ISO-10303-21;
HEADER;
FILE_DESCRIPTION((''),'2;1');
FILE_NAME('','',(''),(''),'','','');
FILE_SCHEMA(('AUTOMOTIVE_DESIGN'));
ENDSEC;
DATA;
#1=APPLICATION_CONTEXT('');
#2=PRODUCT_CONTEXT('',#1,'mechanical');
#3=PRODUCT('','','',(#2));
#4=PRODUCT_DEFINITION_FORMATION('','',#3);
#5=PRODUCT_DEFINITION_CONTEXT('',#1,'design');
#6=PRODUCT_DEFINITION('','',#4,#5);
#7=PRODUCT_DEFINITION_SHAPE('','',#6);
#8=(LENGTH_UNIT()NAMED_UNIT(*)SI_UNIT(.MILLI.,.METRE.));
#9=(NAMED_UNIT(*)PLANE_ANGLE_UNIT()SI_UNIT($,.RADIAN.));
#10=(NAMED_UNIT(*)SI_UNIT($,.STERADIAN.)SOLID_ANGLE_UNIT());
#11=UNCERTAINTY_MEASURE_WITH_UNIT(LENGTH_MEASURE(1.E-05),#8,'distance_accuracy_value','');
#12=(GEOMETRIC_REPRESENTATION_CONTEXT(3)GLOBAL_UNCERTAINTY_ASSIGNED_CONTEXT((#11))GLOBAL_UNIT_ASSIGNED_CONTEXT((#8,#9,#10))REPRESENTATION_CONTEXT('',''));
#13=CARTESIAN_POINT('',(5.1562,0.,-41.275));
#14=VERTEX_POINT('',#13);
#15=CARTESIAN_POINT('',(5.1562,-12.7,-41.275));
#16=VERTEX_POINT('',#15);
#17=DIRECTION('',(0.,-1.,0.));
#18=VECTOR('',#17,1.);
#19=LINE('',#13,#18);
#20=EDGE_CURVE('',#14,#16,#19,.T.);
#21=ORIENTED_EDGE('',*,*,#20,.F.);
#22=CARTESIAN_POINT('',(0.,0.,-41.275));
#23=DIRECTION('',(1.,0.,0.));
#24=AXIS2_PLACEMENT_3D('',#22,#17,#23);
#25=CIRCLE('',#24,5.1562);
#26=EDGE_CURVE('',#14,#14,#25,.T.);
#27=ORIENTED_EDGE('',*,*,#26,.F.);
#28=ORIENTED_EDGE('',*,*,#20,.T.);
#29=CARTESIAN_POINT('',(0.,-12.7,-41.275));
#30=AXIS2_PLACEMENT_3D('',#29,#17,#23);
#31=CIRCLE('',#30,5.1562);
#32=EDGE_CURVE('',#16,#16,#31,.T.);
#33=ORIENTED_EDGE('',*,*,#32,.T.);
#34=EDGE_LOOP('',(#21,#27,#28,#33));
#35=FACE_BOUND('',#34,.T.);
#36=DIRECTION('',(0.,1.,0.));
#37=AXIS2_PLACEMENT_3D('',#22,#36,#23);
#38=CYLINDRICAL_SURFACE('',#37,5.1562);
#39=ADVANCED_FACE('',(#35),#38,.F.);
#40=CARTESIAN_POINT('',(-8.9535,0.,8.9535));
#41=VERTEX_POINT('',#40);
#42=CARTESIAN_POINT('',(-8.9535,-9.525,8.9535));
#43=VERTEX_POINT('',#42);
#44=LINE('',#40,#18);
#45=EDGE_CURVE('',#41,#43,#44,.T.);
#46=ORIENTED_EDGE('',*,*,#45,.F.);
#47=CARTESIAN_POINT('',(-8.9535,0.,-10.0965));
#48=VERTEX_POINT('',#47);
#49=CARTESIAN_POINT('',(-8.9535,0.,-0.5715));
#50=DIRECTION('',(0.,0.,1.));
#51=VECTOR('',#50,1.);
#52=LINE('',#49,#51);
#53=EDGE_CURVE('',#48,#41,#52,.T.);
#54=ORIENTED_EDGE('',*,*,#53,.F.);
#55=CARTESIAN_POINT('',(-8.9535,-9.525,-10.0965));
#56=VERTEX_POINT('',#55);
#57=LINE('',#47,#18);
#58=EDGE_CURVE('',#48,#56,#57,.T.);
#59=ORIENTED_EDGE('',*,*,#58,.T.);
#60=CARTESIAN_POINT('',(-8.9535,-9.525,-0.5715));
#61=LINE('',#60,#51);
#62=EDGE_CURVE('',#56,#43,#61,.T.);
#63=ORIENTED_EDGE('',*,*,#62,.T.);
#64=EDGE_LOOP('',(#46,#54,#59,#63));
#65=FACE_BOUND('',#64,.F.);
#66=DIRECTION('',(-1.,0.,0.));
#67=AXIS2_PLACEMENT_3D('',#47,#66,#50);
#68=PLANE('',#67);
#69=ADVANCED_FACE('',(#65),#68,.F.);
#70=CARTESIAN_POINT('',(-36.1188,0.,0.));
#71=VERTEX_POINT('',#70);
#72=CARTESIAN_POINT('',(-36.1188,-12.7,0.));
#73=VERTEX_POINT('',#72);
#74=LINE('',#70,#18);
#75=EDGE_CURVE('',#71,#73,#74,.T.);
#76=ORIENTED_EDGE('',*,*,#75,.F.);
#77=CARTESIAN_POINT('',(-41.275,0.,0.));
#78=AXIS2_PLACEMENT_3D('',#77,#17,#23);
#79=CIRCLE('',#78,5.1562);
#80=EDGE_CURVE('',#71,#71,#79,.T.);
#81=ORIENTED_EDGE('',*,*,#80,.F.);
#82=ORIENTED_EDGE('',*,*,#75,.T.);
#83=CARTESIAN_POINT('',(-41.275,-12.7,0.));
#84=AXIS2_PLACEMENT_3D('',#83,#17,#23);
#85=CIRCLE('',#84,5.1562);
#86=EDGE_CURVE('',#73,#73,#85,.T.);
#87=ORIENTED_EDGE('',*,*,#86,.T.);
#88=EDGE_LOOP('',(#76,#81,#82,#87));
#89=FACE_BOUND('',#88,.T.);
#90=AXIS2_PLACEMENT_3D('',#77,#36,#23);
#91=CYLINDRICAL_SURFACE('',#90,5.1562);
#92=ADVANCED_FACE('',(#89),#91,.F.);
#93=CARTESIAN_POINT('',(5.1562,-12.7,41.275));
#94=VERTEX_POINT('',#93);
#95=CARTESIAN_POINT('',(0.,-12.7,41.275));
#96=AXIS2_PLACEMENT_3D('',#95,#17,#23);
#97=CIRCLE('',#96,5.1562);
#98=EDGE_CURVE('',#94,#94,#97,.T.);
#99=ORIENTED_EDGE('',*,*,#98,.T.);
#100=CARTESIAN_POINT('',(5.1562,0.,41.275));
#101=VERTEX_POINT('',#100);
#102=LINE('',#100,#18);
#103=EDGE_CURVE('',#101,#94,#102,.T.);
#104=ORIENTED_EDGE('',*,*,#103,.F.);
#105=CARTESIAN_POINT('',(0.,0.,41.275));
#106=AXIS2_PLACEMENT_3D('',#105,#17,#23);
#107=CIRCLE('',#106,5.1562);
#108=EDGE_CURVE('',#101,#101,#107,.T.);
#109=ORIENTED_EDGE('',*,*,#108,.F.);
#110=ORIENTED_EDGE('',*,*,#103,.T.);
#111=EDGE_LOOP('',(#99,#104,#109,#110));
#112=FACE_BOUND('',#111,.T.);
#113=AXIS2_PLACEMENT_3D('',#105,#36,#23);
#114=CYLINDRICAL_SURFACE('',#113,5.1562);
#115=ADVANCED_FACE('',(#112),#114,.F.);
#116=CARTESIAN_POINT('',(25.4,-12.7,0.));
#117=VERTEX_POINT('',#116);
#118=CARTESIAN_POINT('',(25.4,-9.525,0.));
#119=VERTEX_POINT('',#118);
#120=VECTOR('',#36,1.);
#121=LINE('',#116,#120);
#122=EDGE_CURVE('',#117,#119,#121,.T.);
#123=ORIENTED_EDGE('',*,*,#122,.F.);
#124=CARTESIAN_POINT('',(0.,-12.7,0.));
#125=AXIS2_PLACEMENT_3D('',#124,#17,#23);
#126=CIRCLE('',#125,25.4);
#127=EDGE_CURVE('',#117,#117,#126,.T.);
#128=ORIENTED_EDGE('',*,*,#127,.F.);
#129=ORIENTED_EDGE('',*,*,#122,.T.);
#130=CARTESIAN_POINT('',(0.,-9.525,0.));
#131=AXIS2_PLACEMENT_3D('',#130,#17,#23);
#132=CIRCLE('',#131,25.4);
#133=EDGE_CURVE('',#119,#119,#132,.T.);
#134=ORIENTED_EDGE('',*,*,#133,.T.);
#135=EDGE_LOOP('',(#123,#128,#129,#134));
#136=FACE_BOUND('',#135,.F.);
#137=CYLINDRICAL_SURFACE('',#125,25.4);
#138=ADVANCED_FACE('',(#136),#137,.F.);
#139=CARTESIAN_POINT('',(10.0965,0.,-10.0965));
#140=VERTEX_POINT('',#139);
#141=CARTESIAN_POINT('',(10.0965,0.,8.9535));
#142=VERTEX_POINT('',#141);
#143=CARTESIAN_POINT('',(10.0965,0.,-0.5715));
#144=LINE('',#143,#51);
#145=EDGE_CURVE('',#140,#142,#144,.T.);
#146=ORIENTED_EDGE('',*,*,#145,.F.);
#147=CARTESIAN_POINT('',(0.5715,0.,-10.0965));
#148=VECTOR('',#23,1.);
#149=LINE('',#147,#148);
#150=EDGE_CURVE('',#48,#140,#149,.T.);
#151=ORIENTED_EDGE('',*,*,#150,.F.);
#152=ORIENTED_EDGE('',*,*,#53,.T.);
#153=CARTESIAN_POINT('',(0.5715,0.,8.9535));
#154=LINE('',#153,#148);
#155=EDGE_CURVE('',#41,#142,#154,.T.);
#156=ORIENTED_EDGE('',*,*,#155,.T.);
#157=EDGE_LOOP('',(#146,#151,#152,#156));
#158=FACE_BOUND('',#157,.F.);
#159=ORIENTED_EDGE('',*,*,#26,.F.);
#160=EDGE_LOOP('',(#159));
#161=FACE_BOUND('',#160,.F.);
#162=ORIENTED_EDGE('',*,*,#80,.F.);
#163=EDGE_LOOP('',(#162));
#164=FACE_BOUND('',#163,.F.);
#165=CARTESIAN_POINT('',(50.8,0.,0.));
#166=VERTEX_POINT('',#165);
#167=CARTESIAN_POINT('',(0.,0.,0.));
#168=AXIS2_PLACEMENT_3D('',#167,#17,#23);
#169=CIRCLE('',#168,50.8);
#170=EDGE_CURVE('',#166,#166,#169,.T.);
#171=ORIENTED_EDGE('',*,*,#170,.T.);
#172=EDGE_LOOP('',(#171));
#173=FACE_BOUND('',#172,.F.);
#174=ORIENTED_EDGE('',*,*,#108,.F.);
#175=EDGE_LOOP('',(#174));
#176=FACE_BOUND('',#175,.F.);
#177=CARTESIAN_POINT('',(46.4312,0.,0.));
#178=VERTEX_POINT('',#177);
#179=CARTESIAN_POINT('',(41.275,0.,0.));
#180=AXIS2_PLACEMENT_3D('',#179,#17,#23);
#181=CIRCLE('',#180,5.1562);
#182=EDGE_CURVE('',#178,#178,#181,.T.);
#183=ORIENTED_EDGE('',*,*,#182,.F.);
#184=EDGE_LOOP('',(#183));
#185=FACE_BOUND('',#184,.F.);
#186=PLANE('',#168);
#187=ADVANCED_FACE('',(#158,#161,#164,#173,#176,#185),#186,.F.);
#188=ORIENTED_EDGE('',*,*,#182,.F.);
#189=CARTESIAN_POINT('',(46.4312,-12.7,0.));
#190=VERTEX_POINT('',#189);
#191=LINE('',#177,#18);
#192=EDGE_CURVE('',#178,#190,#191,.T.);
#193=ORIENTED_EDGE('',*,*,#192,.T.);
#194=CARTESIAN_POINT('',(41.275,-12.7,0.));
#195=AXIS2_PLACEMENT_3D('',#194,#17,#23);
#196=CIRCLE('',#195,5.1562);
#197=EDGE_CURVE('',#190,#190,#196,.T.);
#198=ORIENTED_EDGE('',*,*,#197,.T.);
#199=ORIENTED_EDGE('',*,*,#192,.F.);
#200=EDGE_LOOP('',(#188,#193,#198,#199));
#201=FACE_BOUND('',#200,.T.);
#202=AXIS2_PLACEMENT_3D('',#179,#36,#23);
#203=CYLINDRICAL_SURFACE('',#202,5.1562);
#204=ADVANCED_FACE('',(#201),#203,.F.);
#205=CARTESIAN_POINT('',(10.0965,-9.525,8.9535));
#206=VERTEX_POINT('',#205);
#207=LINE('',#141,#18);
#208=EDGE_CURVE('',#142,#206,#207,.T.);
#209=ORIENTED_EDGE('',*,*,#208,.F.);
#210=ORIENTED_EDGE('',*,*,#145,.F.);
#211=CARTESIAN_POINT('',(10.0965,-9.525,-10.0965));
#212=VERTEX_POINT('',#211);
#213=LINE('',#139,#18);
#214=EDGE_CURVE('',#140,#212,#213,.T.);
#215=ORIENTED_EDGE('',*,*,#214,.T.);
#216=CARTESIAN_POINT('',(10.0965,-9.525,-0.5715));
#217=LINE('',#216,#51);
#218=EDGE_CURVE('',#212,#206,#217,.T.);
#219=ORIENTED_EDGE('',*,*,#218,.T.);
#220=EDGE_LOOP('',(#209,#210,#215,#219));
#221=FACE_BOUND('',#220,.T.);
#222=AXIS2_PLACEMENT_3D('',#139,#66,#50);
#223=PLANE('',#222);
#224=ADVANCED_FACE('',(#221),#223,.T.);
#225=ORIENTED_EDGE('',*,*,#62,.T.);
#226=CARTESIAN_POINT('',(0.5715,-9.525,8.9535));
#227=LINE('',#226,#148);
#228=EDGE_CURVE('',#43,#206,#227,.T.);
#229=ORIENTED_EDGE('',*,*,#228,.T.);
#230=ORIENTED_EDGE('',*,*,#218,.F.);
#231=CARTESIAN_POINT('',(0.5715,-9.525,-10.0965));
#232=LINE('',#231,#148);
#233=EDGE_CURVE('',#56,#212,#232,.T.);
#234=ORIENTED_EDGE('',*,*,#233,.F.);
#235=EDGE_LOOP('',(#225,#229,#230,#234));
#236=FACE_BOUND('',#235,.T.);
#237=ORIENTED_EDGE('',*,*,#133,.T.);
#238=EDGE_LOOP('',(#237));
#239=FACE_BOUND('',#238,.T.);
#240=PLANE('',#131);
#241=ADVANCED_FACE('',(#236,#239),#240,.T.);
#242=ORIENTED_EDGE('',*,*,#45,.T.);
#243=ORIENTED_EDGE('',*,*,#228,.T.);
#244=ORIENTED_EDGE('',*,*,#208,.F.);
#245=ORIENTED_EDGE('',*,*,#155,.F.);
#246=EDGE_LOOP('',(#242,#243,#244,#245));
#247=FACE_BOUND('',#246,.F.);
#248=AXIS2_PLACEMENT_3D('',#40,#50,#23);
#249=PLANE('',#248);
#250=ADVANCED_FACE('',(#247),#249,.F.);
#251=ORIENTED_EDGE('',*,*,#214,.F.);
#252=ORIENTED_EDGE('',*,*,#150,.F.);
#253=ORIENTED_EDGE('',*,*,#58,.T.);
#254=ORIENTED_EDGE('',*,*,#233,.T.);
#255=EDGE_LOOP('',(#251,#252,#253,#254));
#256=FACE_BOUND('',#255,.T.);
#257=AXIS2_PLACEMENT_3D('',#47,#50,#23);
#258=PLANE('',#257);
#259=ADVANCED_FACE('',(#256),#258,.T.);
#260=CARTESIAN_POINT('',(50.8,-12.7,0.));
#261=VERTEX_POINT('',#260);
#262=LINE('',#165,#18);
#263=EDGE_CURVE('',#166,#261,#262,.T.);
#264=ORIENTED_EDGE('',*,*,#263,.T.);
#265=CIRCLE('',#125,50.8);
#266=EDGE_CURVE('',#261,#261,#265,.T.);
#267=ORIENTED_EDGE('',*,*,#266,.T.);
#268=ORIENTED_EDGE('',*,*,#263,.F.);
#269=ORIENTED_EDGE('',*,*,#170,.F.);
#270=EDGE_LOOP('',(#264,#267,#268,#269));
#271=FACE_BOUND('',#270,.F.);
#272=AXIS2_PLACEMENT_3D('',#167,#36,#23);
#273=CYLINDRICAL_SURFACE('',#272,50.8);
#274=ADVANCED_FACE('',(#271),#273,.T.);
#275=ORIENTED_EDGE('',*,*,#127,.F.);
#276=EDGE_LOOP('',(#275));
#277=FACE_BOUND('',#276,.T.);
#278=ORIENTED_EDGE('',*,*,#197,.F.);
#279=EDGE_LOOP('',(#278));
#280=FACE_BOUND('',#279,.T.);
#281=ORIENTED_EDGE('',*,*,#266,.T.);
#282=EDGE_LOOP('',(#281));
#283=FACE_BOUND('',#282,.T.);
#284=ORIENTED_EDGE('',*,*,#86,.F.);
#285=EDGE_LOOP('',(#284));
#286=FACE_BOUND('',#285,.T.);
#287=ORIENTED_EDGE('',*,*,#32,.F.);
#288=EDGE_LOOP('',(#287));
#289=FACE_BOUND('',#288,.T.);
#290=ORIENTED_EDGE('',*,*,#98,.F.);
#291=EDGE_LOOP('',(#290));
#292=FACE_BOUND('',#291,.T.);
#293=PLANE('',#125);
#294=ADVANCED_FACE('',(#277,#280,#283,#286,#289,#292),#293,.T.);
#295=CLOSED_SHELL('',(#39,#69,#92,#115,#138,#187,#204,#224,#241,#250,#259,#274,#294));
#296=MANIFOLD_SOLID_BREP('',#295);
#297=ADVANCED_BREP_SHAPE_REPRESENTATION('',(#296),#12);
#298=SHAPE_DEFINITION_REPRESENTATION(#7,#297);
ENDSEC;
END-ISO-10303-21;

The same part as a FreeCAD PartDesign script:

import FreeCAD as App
import Part
import Sketcher

V = App.Vector
Q = App.Units.Quantity


def add_polygon(sketch, points):
    """Adds a closed chain of lines whose ends are joined by coincident constraints."""
    first, n = sketch.GeometryCount, len(points)
    for a, b in zip(points, points[1:] + points[:1]):
        sketch.addGeometry(Part.LineSegment(App.Vector(*a, 0), App.Vector(*b, 0)), False)
    for i in range(n):
        sketch.addConstraint(Sketcher.Constraint("Coincident", first + i, 2, first + (i + 1) % n, 1))

doc = App.newDocument("Part")
body = doc.addObject("PartDesign::Body", "Body")

sketch1 = body.newObject("Sketcher::SketchObject", "Sketch")
sketch1.AttachmentSupport = (doc.getObject("XZ_Plane"), [""])
sketch1.MapMode = "FlatFace"
sketch1.addGeometry(Part.Circle(V(0, 0, 0), V(0, 0, 1), 51), False)
sketch1.addGeometry(Part.Circle(V(0, -41, 0), V(0, 0, 1), 5), False)
add_polygon(sketch1, [(10, -10), (-9, -10), (-9, 9), (10, 9)])
sketch1.addGeometry(Part.Circle(V(-41, 0, 0), V(0, 0, 1), 5), False)
sketch1.addGeometry(Part.Circle(V(41, 0, 0), V(0, 0, 1), 5), False)
sketch1.addGeometry(Part.Circle(V(0, 41, 0), V(0, 0, 1), 5), False)
sketch1.addConstraint([
    Sketcher.Constraint("Horizontal", 2),
    Sketcher.Constraint("Vertical", 3),
    Sketcher.Constraint("Horizontal", 4),
    Sketcher.Constraint("Vertical", 5),
    Sketcher.Constraint("Coincident", 0, 3, -1, 1),
    Sketcher.Constraint("Equal", 1, 6),
    Sketcher.Constraint("Equal", 6, 7),
    Sketcher.Constraint("Equal", 7, 8),
    Sketcher.Constraint("Symmetric", 6, 3, 7, 3, -1, 1),
    Sketcher.Constraint("Symmetric", 1, 3, 8, 3, -1, 1),
    Sketcher.Constraint("PointOnObject", 1, 3, -2),
    Sketcher.Constraint("PointOnObject", 6, 3, -1),
    Sketcher.Constraint("Equal", 4, 3),
    Sketcher.Constraint("Diameter", 0, Q("4 in")),
    Sketcher.Constraint("Diameter", 1, Q("0.406 in")),
    Sketcher.Constraint("DistanceX", 2, 2, 2, 1, Q("0.75 in")),
    Sketcher.Constraint("DistanceX", 6, 3, 7, 3, Q("3.25 in")),
    Sketcher.Constraint("DistanceY", 1, 3, 8, 3, Q("3.25 in")),
    Sketcher.Constraint("DistanceX", 2, 2, -1, 1, Q("0.3525 in")),
    Sketcher.Constraint("DistanceY", 2, 2, -1, 1, Q("0.3975 in")),
])
pad1 = body.newObject("PartDesign::Pad", "Pad")
pad1.Profile = sketch1
pad1.Length = Q("0.5 in")

sketch2 = body.newObject("Sketcher::SketchObject", "Sketch001")
sketch2.AttachmentSupport = (doc.getObject("XZ_Plane"), [""])
sketch2.MapMode = "FlatFace"
sketch2.AttachmentOffset = App.Placement(V(0, 0, 0.5 * 25.4), App.Rotation())
sketch2.addGeometry(Part.Circle(V(0, 0, 0), V(0, 0, 1), 25), False)
add_polygon(sketch2, [(10, -10), (-9, -10), (-9, 9), (10, 9)])
sketch2.addConstraint([
    Sketcher.Constraint("Horizontal", 1),
    Sketcher.Constraint("Vertical", 2),
    Sketcher.Constraint("Horizontal", 3),
    Sketcher.Constraint("Vertical", 4),
    Sketcher.Constraint("Coincident", 0, 3, -1, 1),
    Sketcher.Constraint("Equal", 3, 2),
    Sketcher.Constraint("Diameter", 0, Q("2 in")),
    Sketcher.Constraint("DistanceX", 1, 2, 1, 1, Q("0.75 in")),
    Sketcher.Constraint("DistanceX", 1, 2, -1, 1, Q("0.3525 in")),
    Sketcher.Constraint("DistanceY", 1, 2, -1, 1, Q("0.3975 in")),
])
pocket1 = body.newObject("PartDesign::Pocket", "Pocket")
pocket1.Profile = sketch2
pocket1.Length = Q("0.125 in")

doc.recompute()
